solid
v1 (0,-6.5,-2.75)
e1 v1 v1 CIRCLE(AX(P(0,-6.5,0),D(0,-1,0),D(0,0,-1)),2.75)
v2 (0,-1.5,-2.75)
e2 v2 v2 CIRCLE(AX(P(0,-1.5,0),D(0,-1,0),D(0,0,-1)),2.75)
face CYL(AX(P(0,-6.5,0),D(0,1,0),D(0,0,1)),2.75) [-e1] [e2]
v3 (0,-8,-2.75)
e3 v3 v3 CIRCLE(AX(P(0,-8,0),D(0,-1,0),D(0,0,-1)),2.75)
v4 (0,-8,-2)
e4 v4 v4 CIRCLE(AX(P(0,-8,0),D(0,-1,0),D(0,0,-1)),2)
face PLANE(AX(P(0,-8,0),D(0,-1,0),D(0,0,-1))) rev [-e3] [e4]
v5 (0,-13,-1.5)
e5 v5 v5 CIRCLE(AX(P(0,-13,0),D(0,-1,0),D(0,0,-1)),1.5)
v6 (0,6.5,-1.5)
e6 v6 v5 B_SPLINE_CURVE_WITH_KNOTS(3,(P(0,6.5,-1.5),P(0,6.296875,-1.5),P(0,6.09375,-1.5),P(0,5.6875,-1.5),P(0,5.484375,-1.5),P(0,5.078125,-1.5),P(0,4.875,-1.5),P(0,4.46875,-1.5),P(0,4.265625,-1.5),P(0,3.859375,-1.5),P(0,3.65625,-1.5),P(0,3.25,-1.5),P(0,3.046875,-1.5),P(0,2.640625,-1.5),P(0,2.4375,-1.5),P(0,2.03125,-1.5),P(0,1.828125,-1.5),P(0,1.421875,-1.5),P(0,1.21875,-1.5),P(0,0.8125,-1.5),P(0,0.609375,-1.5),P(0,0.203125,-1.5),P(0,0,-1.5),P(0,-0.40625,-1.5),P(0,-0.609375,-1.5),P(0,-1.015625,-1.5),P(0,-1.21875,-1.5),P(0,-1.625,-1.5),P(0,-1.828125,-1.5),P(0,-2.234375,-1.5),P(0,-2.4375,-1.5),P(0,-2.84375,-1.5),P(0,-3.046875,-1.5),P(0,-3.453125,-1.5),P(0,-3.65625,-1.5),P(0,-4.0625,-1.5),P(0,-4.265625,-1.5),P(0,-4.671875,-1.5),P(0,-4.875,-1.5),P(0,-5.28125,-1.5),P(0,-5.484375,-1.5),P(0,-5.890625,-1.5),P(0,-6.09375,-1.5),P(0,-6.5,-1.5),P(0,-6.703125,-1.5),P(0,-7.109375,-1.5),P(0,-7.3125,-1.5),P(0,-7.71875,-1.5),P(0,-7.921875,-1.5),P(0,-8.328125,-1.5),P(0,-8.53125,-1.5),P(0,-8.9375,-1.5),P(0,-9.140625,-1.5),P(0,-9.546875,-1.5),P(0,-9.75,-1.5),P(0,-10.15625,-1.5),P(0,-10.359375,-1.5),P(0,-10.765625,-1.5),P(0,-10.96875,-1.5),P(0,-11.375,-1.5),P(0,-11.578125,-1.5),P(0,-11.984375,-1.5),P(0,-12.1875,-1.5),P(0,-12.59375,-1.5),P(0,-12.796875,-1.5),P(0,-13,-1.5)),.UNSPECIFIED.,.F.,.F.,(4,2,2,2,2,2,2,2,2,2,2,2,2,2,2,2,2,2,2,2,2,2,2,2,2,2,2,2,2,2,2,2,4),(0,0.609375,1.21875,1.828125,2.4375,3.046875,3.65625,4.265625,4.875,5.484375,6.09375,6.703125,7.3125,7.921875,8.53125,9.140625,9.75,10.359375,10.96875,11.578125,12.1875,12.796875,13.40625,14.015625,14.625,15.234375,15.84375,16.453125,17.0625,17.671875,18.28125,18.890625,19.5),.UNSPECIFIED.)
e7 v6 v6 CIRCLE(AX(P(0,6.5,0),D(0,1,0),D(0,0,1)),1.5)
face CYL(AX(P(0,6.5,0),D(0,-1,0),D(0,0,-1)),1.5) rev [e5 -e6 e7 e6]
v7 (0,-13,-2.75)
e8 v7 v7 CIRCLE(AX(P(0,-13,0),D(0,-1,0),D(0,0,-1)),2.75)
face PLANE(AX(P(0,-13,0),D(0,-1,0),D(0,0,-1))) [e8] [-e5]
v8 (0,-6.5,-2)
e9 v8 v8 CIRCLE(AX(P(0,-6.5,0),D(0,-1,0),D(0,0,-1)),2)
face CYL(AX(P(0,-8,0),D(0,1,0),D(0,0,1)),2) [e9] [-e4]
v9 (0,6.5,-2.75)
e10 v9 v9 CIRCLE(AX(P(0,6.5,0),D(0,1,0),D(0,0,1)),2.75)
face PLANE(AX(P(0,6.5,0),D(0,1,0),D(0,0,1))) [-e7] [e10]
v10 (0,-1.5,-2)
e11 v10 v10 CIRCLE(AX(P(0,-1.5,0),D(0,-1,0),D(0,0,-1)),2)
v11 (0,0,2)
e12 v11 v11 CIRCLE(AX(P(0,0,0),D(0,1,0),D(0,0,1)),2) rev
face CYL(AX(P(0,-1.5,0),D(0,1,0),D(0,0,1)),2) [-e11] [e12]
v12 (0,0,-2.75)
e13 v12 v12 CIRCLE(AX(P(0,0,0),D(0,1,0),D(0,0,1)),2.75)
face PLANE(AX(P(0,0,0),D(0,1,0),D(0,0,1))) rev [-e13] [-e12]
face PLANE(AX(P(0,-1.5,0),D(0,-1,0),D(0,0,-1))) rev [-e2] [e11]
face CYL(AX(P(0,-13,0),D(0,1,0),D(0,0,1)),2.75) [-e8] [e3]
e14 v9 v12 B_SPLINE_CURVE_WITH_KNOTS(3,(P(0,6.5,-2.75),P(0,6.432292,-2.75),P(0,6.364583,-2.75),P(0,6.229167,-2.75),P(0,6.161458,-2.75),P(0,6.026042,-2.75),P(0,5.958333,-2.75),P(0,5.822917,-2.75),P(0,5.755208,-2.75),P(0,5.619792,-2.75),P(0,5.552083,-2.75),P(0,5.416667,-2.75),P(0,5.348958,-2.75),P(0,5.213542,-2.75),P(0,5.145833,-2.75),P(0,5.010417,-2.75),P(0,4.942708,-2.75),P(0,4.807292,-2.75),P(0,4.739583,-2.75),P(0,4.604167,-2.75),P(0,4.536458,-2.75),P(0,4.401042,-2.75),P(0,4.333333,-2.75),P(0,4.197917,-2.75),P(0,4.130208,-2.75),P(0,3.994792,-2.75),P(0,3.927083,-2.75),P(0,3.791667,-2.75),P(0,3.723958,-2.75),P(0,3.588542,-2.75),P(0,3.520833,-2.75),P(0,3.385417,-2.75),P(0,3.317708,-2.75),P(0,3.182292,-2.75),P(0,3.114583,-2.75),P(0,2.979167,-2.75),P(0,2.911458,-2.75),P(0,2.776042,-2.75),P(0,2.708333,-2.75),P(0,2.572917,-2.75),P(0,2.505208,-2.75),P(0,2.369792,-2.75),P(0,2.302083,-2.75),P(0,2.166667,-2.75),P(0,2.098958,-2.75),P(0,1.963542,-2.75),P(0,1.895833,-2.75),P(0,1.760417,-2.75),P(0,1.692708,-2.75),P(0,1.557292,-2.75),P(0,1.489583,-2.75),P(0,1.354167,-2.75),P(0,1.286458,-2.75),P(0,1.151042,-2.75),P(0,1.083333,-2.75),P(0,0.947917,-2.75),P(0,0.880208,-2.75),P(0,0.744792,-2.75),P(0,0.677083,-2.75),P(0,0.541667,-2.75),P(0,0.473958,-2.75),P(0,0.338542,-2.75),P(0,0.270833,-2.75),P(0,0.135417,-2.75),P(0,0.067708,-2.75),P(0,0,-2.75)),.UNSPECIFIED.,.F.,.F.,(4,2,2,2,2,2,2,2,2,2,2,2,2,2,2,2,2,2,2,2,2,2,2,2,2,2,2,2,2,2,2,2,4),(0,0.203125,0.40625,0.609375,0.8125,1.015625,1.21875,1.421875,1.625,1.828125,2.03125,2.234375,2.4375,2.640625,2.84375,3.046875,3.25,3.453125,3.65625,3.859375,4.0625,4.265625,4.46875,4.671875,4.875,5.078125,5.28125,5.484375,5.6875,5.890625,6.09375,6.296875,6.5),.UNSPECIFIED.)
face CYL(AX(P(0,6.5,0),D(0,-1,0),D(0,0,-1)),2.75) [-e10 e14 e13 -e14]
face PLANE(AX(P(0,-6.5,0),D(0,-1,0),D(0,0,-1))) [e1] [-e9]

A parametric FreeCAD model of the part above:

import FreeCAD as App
import Part
import Sketcher

doc = App.newDocument("Part")
body = doc.addObject("PartDesign::Body", "Body")

sketch1 = doc.addObject("Sketcher::SketchObject", "Sketch")
body.addObject(sketch1)
sketch1.AttachmentSupport = (doc.XZ_Plane, [""])
sketch1.MapMode = "FlatFace"
sketch1.addGeometry([
    Part.Circle(App.Vector(0, 0, 0), App.Vector(0, 0, 1), 2.8),
    Part.Circle(App.Vector(0, 0, 0), App.Vector(0, 0, 1), 1.5),
], False)
sketch1.addConstraint([
    Sketcher.Constraint("Coincident", 0, 3, -1, 1),
    Sketcher.Constraint("Coincident", 1, 3, -1, 1),
    Sketcher.Constraint("Diameter", 1, 3.0),
    Sketcher.Constraint("Diameter", 0, 5.5),
])
pad1 = doc.addObject("PartDesign::Pad", "Pad")
body.addObject(pad1)
pad1.Profile = sketch1
pad1.Length = 6.5
pad1.Reversed = True

sketch2 = doc.addObject("Sketcher::SketchObject", "Sketch001")
body.addObject(sketch2)
sketch2.AttachmentSupport = (doc.XZ_Plane, [""])
sketch2.MapMode = "FlatFace"
sketch2.AttachmentOffset = App.Placement(App.Vector(0, 0, 1.5), App.Rotation())
sketch2.addGeometry([
    Part.Circle(App.Vector(0, 0, 0), App.Vector(0, 0, 1), 2),
    Part.Circle(App.Vector(0, 0, 0), App.Vector(0, 0, 1), 1.5),
], False)
sketch2.addConstraint([
    Sketcher.Constraint("Coincident", 0, 3, -1, 1),
    Sketcher.Constraint("Coincident", 1, 3, -1, 1),
    Sketcher.Constraint("Diameter", 0, 4.0),
    Sketcher.Constraint("Diameter", 1, 3.0),
])
pad2 = doc.addObject("PartDesign::Pad", "Pad001")
body.addObject(pad2)
pad2.Profile = sketch2
pad2.Length = 1.5
pad2.Reversed = True

sketch3 = doc.addObject("Sketcher::SketchObject", "Sketch002")
body.addObject(sketch3)
sketch3.AttachmentSupport = (doc.XZ_Plane, [""])
sketch3.MapMode = "FlatFace"
sketch3.AttachmentOffset = App.Placement(App.Vector(0, 0, 6.5), App.Rotation())
sketch3.addGeometry([
    Part.Circle(App.Vector(0, 0, 0), App.Vector(0, 0, 1), 2.8),
    Part.Circle(App.Vector(0, 0, 0), App.Vector(0, 0, 1), 1.5),
], False)
sketch3.addConstraint([
    Sketcher.Constraint("Coincident", 0, 3, -1, 1),
    Sketcher.Constraint("Coincident", 1, 3, -1, 1),
    Sketcher.Constraint("Diameter", 1, 3.0),
    Sketcher.Constraint("Diameter", 0, 5.5),
])
pad3 = doc.addObject("PartDesign::Pad", "Pad002")
body.addObject(pad3)
pad3.Profile = sketch3
pad3.Length = 5
pad3.Reversed = True

sketch4 = doc.addObject("Sketcher::SketchObject", "Sketch003")
body.addObject(sketch4)
sketch4.AttachmentSupport = (doc.XZ_Plane, [""])
sketch4.MapMode = "FlatFace"
sketch4.AttachmentOffset = App.Placement(App.Vector(0, 0, 8), App.Rotation())
sketch4.addGeometry([
    Part.Circle(App.Vector(0, 0, 0), App.Vector(0, 0, 1), 2),
    Part.Circle(App.Vector(0, 0, 0), App.Vector(0, 0, 1), 1.5),
], False)
sketch4.addConstraint([
    Sketcher.Constraint("Coincident", 0, 3, -1, 1),
    Sketcher.Constraint("Coincident", 1, 3, -1, 1),
    Sketcher.Constraint("Diameter", 0, 4.0),
    Sketcher.Constraint("Diameter", 1, 3.0),
])
pad4 = doc.addObject("PartDesign::Pad", "Pad003")
body.addObject(pad4)
pad4.Profile = sketch4
pad4.Length = 1.5
pad4.Reversed = True

sketch5 = doc.addObject("Sketcher::SketchObject", "Sketch004")
body.addObject(sketch5)
sketch5.AttachmentSupport = (doc.XZ_Plane, [""])
sketch5.MapMode = "FlatFace"
sketch5.AttachmentOffset = App.Placement(App.Vector(0, 0, 13), App.Rotation())
sketch5.addGeometry([
    Part.Circle(App.Vector(0, 0, 0), App.Vector(0, 0, 1), 2.8),
    Part.Circle(App.Vector(0, 0, 0), App.Vector(0, 0, 1), 1.5),
], False)
sketch5.addConstraint([
    Sketcher.Constraint("Coincident", 0, 3, -1, 1),
    Sketcher.Constraint("Coincident", 1, 3, -1, 1),
    Sketcher.Constraint("Diameter", 1, 3.0),
    Sketcher.Constraint("Diameter", 0, 5.5),
])
pad5 = doc.addObject("PartDesign::Pad", "Pad004")
body.addObject(pad5)
pad5.Profile = sketch5
pad5.Length = 5
pad5.Reversed = True

doc.recompute()
